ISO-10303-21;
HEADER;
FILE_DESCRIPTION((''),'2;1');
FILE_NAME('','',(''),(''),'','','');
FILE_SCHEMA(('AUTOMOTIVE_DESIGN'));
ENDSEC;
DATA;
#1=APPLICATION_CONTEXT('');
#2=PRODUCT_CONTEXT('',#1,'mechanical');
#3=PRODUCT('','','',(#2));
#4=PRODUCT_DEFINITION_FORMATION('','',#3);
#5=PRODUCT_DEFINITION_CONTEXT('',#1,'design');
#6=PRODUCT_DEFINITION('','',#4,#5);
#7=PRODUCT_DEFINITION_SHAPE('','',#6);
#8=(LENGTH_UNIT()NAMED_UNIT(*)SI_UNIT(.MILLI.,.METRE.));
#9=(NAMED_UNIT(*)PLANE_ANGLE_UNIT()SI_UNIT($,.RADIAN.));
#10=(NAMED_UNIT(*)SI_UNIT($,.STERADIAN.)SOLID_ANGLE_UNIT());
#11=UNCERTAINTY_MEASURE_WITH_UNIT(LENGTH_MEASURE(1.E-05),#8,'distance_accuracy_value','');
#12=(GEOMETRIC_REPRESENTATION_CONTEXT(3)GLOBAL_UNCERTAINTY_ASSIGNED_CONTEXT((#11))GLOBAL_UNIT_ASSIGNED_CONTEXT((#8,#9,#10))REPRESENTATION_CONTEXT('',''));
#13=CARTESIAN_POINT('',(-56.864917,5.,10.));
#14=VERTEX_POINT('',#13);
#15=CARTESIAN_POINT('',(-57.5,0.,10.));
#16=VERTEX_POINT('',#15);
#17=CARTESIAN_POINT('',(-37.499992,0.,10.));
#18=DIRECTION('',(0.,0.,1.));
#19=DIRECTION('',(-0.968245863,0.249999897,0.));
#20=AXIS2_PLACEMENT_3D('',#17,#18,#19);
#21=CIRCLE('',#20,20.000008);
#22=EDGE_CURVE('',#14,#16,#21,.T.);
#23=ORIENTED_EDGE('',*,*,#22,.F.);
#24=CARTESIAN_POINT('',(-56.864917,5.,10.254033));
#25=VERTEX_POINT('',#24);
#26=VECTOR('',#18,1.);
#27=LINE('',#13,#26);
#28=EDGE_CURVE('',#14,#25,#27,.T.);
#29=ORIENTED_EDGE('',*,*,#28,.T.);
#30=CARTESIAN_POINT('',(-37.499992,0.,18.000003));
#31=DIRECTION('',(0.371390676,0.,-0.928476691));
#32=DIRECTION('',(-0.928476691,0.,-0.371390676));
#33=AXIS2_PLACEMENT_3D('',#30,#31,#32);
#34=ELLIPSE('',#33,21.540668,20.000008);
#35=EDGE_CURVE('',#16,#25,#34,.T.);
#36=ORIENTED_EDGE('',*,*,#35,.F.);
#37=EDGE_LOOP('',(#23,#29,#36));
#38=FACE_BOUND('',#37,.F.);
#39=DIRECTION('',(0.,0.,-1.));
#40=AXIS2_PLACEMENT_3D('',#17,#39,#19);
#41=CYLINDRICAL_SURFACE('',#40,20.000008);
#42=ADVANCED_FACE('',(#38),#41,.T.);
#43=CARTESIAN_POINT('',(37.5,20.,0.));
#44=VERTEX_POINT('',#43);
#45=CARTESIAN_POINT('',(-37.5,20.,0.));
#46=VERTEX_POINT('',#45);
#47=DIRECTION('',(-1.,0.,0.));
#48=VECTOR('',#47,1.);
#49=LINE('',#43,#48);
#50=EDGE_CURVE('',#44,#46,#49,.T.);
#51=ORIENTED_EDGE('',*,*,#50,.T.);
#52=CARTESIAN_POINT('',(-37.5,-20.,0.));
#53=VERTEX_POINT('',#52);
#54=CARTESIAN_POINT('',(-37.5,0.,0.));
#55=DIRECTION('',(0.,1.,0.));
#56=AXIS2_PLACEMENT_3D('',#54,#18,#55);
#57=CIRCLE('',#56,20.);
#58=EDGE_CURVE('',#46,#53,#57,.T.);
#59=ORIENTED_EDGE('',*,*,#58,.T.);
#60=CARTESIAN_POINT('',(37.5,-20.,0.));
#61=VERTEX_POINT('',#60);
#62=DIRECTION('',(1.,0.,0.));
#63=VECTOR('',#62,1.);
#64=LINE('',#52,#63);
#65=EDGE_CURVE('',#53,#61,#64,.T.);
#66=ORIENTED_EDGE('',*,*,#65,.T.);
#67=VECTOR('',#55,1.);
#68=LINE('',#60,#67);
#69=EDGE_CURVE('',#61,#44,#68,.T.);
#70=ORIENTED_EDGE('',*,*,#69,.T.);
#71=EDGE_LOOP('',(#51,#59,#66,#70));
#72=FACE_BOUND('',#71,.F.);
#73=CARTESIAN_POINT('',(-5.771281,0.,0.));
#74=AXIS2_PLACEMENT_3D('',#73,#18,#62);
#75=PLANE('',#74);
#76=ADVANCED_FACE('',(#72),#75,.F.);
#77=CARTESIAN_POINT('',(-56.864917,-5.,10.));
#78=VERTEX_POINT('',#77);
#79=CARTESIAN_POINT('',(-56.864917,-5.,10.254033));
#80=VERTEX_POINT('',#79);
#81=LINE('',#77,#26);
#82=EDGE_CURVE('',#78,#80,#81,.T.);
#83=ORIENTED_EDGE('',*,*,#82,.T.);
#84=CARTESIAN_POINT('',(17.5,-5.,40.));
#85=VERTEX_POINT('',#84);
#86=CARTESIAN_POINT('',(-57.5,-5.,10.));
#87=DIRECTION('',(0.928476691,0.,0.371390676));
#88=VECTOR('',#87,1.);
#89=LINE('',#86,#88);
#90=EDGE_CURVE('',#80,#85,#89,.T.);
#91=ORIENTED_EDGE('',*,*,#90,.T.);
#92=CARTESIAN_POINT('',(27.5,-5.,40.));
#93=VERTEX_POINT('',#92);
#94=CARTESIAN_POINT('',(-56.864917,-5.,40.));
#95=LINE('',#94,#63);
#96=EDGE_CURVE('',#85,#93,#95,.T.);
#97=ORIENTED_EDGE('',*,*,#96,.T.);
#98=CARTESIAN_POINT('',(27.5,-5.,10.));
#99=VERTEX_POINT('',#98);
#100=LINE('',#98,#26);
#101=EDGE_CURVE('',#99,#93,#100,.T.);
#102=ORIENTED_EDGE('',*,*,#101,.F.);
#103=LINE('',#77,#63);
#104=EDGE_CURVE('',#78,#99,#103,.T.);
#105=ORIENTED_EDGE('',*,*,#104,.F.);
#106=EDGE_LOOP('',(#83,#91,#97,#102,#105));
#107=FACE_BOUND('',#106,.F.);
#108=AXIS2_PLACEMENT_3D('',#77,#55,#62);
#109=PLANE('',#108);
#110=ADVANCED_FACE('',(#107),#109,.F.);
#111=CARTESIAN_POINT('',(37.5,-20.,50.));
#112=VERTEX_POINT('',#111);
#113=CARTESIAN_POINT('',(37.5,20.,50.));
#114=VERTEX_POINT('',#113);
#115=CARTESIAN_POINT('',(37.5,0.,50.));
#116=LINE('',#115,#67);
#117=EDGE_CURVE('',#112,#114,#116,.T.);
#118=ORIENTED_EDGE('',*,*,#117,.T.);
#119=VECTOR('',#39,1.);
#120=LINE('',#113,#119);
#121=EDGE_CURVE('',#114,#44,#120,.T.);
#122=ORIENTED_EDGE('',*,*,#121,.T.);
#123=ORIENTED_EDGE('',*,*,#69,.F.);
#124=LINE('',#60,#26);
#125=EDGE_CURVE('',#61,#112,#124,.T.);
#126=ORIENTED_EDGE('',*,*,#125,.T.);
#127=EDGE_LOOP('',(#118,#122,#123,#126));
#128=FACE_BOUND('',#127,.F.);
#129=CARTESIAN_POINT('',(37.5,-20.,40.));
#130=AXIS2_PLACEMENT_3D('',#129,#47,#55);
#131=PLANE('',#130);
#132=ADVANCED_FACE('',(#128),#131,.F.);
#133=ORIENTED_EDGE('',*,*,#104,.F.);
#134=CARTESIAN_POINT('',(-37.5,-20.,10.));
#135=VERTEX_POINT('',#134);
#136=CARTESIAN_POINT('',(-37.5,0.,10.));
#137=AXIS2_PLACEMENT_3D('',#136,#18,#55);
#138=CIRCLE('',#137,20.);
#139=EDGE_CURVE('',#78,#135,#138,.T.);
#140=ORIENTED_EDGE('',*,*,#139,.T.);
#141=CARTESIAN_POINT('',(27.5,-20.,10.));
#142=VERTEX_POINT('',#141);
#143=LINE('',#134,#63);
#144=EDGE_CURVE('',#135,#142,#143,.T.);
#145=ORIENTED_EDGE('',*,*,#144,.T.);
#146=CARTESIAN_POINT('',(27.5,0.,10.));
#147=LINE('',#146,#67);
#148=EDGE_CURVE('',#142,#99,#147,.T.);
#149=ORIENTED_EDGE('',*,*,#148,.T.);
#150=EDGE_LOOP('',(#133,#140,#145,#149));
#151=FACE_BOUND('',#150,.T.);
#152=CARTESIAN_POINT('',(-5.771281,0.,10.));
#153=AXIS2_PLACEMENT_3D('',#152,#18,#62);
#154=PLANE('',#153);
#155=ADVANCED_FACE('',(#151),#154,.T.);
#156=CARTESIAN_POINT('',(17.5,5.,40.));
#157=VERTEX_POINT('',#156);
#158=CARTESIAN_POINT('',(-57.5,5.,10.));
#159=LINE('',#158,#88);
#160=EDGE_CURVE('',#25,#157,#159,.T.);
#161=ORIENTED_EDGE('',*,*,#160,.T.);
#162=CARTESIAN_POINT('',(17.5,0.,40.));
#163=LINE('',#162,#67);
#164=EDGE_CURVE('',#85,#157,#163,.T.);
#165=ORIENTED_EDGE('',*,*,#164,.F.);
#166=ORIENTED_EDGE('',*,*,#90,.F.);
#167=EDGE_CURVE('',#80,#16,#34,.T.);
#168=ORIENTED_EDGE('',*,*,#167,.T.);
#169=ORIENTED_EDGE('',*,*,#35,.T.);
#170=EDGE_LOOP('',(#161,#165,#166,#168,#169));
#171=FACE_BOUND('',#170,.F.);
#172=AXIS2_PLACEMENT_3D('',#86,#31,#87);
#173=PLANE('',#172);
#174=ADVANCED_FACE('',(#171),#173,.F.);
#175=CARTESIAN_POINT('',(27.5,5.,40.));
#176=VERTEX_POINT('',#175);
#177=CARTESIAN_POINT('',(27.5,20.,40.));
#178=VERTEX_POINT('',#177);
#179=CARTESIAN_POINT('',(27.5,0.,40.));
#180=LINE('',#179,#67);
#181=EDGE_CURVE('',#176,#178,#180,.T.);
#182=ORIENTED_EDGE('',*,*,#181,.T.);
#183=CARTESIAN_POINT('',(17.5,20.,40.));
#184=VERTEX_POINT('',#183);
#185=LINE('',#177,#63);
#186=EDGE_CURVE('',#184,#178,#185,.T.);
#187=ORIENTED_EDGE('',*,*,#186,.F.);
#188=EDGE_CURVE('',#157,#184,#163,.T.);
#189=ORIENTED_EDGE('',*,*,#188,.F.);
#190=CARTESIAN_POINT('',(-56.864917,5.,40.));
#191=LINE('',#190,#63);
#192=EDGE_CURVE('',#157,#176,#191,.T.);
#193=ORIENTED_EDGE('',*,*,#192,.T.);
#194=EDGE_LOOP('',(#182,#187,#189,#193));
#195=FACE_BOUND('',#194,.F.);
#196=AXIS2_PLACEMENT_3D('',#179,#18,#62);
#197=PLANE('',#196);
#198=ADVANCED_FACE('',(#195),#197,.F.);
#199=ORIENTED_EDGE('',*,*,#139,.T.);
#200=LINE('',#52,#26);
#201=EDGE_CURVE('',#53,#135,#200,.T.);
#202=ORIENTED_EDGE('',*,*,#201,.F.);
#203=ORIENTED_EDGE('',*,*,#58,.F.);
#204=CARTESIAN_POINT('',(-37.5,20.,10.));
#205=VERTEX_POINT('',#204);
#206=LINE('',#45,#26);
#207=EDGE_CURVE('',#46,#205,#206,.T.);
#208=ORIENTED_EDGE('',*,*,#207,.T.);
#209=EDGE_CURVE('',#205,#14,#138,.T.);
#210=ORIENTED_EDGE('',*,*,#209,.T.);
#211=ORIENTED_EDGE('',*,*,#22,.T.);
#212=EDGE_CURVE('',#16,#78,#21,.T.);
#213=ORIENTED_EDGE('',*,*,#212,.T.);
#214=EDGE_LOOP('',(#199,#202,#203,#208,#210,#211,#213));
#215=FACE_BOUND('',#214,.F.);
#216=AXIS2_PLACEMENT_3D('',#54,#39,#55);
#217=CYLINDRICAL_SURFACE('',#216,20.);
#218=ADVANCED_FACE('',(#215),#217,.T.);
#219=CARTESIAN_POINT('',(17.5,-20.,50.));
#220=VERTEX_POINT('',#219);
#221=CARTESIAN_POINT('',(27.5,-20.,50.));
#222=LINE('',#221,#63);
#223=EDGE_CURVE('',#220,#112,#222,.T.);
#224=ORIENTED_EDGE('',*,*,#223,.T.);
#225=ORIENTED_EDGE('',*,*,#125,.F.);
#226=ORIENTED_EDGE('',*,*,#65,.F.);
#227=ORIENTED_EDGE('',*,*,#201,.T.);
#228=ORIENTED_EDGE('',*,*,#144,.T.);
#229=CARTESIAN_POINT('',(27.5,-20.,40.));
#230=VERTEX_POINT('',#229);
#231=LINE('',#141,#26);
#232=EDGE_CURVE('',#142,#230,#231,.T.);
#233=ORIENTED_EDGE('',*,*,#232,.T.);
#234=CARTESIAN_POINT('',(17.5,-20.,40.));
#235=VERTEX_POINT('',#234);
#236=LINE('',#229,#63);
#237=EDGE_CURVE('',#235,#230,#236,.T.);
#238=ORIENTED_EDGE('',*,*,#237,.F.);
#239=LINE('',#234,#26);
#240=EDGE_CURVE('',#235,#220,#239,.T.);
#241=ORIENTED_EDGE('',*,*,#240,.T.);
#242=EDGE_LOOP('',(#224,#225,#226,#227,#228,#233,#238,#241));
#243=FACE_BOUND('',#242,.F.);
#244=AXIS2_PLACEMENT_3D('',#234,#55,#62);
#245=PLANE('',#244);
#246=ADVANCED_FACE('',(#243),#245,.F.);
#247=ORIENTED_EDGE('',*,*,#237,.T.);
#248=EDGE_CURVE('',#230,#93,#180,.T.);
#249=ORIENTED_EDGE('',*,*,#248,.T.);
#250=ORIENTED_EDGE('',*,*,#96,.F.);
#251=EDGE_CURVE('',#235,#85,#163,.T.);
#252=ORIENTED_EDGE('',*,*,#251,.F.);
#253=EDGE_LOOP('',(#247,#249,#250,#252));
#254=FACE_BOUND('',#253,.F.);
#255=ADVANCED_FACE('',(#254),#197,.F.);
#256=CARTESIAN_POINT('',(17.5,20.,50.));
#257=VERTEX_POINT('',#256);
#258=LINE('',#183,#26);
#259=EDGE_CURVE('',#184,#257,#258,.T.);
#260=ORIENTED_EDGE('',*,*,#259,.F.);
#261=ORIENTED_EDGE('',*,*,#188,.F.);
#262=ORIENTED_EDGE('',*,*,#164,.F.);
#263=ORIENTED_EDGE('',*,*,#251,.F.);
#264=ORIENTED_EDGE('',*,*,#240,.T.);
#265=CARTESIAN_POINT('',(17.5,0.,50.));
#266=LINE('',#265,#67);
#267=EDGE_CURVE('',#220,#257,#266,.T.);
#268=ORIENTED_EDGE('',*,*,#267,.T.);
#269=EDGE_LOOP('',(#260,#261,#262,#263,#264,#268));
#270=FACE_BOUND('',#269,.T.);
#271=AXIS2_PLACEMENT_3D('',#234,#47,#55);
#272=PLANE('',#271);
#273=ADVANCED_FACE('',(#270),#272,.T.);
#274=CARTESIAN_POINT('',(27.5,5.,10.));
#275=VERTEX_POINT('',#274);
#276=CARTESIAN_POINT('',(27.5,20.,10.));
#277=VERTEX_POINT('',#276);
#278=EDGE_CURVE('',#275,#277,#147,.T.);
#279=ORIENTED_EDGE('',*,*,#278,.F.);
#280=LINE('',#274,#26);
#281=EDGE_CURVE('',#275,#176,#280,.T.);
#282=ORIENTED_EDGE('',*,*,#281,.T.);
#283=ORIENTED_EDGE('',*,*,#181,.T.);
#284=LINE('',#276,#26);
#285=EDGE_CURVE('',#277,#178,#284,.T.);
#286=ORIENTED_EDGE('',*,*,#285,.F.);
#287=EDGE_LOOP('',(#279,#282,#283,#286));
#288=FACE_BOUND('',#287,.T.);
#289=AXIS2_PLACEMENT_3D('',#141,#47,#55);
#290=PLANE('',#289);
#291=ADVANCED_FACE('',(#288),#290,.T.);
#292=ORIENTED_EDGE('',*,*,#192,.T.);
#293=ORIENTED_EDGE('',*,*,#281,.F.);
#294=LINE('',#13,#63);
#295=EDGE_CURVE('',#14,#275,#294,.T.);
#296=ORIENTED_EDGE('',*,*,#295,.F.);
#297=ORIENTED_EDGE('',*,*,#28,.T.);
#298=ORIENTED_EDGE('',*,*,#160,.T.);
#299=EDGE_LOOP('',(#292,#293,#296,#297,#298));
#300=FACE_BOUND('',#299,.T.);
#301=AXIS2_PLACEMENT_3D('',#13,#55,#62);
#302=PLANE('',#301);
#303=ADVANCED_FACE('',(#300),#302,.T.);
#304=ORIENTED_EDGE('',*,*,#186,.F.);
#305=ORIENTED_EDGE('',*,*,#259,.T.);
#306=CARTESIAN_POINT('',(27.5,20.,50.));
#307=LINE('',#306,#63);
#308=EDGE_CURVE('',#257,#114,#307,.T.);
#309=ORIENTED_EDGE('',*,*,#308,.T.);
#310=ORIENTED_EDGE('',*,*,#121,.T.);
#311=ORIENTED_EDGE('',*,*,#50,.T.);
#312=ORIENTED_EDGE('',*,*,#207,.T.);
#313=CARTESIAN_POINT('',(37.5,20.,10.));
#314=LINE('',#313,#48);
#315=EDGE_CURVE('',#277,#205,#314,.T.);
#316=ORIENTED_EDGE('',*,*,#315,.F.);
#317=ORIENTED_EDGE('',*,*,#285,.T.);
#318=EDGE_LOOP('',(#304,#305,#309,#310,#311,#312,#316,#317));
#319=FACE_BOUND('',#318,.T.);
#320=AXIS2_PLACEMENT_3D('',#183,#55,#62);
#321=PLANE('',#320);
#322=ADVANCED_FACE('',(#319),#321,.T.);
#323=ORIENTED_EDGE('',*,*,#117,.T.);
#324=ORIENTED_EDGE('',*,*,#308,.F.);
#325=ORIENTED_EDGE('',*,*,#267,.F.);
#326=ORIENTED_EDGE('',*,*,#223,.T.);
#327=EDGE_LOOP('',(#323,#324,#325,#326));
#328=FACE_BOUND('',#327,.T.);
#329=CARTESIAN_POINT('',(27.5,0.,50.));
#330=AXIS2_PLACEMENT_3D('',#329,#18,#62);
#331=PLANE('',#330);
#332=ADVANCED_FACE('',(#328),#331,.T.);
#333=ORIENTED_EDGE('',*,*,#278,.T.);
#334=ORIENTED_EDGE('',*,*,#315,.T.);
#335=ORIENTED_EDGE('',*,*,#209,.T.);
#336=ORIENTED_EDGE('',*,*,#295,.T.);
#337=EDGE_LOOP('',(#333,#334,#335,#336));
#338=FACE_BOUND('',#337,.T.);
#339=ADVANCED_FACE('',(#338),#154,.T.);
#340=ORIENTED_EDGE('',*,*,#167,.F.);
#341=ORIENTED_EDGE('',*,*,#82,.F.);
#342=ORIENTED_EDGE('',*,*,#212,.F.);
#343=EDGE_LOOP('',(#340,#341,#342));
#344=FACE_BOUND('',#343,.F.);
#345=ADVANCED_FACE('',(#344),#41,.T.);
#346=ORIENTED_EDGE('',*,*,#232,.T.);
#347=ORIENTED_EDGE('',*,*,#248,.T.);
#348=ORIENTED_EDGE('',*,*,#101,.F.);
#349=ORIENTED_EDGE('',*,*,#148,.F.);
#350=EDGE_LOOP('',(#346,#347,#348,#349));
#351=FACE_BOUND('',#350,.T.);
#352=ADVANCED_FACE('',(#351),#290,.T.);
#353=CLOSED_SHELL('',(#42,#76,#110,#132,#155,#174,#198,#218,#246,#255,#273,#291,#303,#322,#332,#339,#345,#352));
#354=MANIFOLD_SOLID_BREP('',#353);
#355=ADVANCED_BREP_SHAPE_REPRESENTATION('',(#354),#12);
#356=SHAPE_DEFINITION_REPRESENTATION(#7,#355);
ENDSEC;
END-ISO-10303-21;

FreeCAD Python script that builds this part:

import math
import FreeCAD as App
import Part
import Sketcher

V = App.Vector


def add_polygon(sketch, points):
    """Adds a closed chain of lines whose ends are joined by coincident constraints."""
    first, n = sketch.GeometryCount, len(points)
    for a, b in zip(points, points[1:] + points[:1]):
        sketch.addGeometry(Part.LineSegment(App.Vector(*a, 0), App.Vector(*b, 0)), False)
    for i in range(n):
        sketch.addConstraint(Sketcher.Constraint("Coincident", first + i, 2, first + (i + 1) % n, 1))

doc = App.newDocument("Part")
params = doc.addObject("Spreadsheet::Sheet", "Params")
for row, (alias, value) in enumerate([
    ("sketch1_radius", "20 mm"),
    ("sketch1_width", "75 mm"),
    ("pad1_length", "10 mm"),
    ("sketch2_width", "10 mm"),
    ("sketch2_height", "40 mm"),
    ("pad2_length", "30 mm"),
    ("sketch3_width", "20 mm"),
    ("sketch3_height", "40 mm"),
    ("pad3_length", "10 mm"),
    ("sketch4_height", "10 mm"),
    ("pad4_length", "30 mm"),
    ("sketch5_width", "75 mm"),
    ("sketch5_height", "30 mm"),
    ("pocket1_length", "10 mm"),
], start=1):
    params.set(f"A{row}", alias)
    params.set(f"B{row}", "=" + value)
    params.setAlias(f"B{row}", alias)

body = doc.addObject("PartDesign::Body", "Body")

# Sketch on XY plane
sketch1 = body.newObject("Sketcher::SketchObject", "Sketch")
sketch1.AttachmentSupport = (doc.getObject("XY_Plane"), [""])
sketch1.MapMode = "FlatFace"
sketch1.addGeometry([
    Part.LineSegment(V(38, -20, 0), V(38, 20, 0)),
    Part.LineSegment(V(38, 20, 0), V(-38, 20, 0)),
    Part.ArcOfCircle(Part.Circle(V(-38, 0, 0), V(0, 0, 1), 20), math.radians(90), math.radians(270)),
    Part.LineSegment(V(-38, -20, 0), V(38, -20, 0)),
], False)
sketch1.addConstraint([
    Sketcher.Constraint("Coincident", 0, 2, 1, 1),
    Sketcher.Constraint("Tangent", 1, 2, 2, 1),
    Sketcher.Constraint("Tangent", 2, 2, 3, 1),
    Sketcher.Constraint("Coincident", 3, 2, 0, 1),
    Sketcher.Constraint("Vertical", 0),
    Sketcher.Constraint("Horizontal", 1),
    Sketcher.Constraint("Horizontal", 3),
    Sketcher.Constraint("Symmetric", 0, 2, 2, 2, -1, 1),
    Sketcher.Constraint("Radius", 2, 20.0),
    Sketcher.Constraint("DistanceX", 1, 2, 1, 1, 75.0),
])
sketch1.setExpression("Constraints[8]", "Params.sketch1_radius")
sketch1.setExpression("Constraints[9]", "Params.sketch1_width")
pad1 = body.newObject("PartDesign::Pad", "Pad")
pad1.Profile = sketch1
pad1.setExpression("Length", "Params.pad1_length")

# Sketch on XY plane
sketch2 = body.newObject("Sketcher::SketchObject", "Sketch001")
sketch2.AttachmentSupport = (doc.getObject("XY_Plane"), [""])
sketch2.MapMode = "FlatFace"
sketch2.AttachmentOffset = App.Placement(V(0, 0, 10), App.Rotation())
add_polygon(sketch2, [(28, 20), (28, -20), (38, -20), (38, 20)])  # lines 0-3
sketch2.addConstraint([
    Sketcher.Constraint("Vertical", 0),
    Sketcher.Constraint("Horizontal", 1),
    Sketcher.Constraint("Vertical", 2),
    Sketcher.Constraint("Horizontal", 3),
    Sketcher.Constraint("DistanceX", 1, 1, 1, 2, 10.0),
    Sketcher.Constraint("DistanceY", 0, 2, 0, 1, 40.0),
    Sketcher.Constraint("DistanceY", 0, 2, -1, 1, 20.0),
    Sketcher.Constraint("DistanceX", -1, 1, 0, 2, 27.5),
])
sketch2.setExpression("Constraints[8]", "Params.sketch2_width")
sketch2.setExpression("Constraints[9]", "Params.sketch2_height")
pad2 = body.newObject("PartDesign::Pad", "Pad001")
pad2.Profile = sketch2
pad2.setExpression("Length", "Params.pad2_length")

# Sketch on XY plane
sketch3 = body.newObject("Sketcher::SketchObject", "Sketch002")
sketch3.AttachmentSupport = (doc.getObject("XY_Plane"), [""])
sketch3.MapMode = "FlatFace"
sketch3.AttachmentOffset = App.Placement(V(0, 0, 40), App.Rotation())
add_polygon(sketch3, [(18, 20), (18, -20), (38, -20), (38, 20)])  # lines 0-3
sketch3.addConstraint([
    Sketcher.Constraint("Vertical", 0),
    Sketcher.Constraint("Horizontal", 1),
    Sketcher.Constraint("Vertical", 2),
    Sketcher.Constraint("Horizontal", 3),
    Sketcher.Constraint("DistanceX", 1, 1, 1, 2, 20.0),
    Sketcher.Constraint("DistanceY", 0, 2, 0, 1, 40.0),
    Sketcher.Constraint("DistanceY", 0, 2, -1, 1, 20.0),
    Sketcher.Constraint("DistanceX", -1, 1, 0, 2, 17.5),
])
sketch3.setExpression("Constraints[8]", "Params.sketch3_width")
sketch3.setExpression("Constraints[9]", "Params.sketch3_height")
pad3 = body.newObject("PartDesign::Pad", "Pad002")
pad3.Profile = sketch3
pad3.setExpression("Length", "Params.pad3_length")

# Sketch on XY plane
sketch4 = body.newObject("Sketcher::SketchObject", "Sketch003")
sketch4.AttachmentSupport = (doc.getObject("XY_Plane"), [""])
sketch4.MapMode = "FlatFace"
sketch4.AttachmentOffset = App.Placement(V(0, 0, 10), App.Rotation())
sketch4.addGeometry([
    Part.LineSegment(V(28, 5, 0), V(-57, 5, 0)),
    Part.ArcOfCircle(Part.Circle(V(-37, 0, 0), V(0, 0, 1), 20), math.radians(166), math.radians(194)),
    Part.LineSegment(V(-57, -5, 0), V(28, -5, 0)),
    Part.LineSegment(V(28, -5, 0), V(28, 5, 0)),
], False)
sketch4.addConstraint([
    Sketcher.Constraint("Coincident", 0, 2, 1, 1),
    Sketcher.Constraint("Coincident", 1, 2, 2, 1),
    Sketcher.Constraint("Coincident", 2, 2, 3, 1),
    Sketcher.Constraint("Coincident", 3, 2, 0, 1),
    Sketcher.Constraint("Horizontal", 0),
    Sketcher.Constraint("Horizontal", 2),
    Sketcher.Constraint("Vertical", 3),
    Sketcher.Constraint("Symmetric", 0, 2, 1, 2, -1),
    Sketcher.Constraint("DistanceY", 3, 1, 3, 2, 10.0),
    Sketcher.Constraint("DistanceX", -1, 1, 2, 2, 27.5),
    Sketcher.Constraint("Radius", 1, 20.000008),
    Sketcher.Constraint("DistanceX", 0, 2, 0, 1, 84.364917),
])
sketch4.setExpression("Constraints[8]", "Params.sketch4_height")
pad4 = body.newObject("PartDesign::Pad", "Pad003")
pad4.Profile = sketch4
pad4.setExpression("Length", "Params.pad4_length")

# Sketch on XZ plane
sketch5 = body.newObject("Sketcher::SketchObject", "Sketch004")
sketch5.AttachmentSupport = (doc.getObject("XZ_Plane"), [""])
sketch5.MapMode = "FlatFace"
sketch5.AttachmentOffset = App.Placement(V(0, 0, 5), App.Rotation())
add_polygon(sketch5, [(-58, 10), (18, 40), (-58, 40)])  # lines 0-2
sketch5.addConstraint([
    Sketcher.Constraint("Horizontal", 1),
    Sketcher.Constraint("Vertical", 2),
    Sketcher.Constraint("DistanceX", 1, 2, 1, 1, 75.0),
    Sketcher.Constraint("DistanceY", 2, 2, 2, 1, 30.0),
    Sketcher.Constraint("DistanceY", -1, 1, 0, 2, 40.0),
    Sketcher.Constraint("DistanceX", -1, 1, 0, 2, 17.5),
])
sketch5.setExpression("Constraints[5]", "Params.sketch5_width")
sketch5.setExpression("Constraints[6]", "Params.sketch5_height")
pocket1 = body.newObject("PartDesign::Pocket", "Pocket")
pocket1.Profile = sketch5
pocket1.setExpression("Length", "Params.pocket1_length")

doc.recompute()
